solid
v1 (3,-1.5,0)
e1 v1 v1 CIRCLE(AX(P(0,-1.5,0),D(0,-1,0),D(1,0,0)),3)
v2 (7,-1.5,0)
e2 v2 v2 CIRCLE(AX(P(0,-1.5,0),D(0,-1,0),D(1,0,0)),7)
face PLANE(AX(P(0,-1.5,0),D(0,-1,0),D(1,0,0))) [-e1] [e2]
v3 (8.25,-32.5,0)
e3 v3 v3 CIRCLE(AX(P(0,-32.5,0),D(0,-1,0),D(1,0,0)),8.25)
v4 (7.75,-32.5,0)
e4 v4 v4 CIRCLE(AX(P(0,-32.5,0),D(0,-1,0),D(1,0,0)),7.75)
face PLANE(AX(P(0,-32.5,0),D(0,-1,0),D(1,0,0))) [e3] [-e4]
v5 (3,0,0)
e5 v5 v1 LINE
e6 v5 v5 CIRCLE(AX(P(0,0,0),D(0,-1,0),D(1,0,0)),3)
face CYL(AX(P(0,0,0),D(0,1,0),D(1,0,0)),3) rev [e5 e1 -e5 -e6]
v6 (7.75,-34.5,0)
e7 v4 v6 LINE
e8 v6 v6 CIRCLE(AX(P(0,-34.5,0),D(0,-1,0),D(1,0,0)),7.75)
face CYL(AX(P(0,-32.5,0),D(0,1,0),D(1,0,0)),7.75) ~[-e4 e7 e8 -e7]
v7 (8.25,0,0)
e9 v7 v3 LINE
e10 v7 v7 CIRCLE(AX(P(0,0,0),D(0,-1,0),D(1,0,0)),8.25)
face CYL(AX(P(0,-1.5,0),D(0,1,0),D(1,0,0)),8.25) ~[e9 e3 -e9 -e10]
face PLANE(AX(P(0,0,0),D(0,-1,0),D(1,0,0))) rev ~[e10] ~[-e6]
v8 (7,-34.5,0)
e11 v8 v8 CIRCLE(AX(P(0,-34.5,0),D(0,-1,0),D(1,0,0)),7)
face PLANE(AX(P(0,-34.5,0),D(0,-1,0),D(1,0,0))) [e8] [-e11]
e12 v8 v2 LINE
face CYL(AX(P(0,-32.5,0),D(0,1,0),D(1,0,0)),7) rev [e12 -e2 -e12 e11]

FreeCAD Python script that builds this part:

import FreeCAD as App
import Part
import Sketcher
from FreeCAD import Vector

doc = App.newDocument("Part")
body = doc.addObject("PartDesign::Body", "Body")

sketch1 = body.newObject("Sketcher::SketchObject", "Sketch")
sketch1.AttachmentSupport = (doc.getObject("XY_Plane"), [""])
sketch1.MapMode = "FlatFace"
sketch1.addGeometry([
    Part.Circle(Vector(0, 0, 0), Vector(0, 0, 1), 8.2),
    Part.Circle(Vector(0, 0, 0), Vector(0, 0, 1), 3),
], False)
sketch1.addConstraint([
    Sketcher.Constraint("Coincident", 0, 3, -1, 1),
    Sketcher.Constraint("Coincident", 1, 3, -1, 1),
    Sketcher.Constraint("Diameter", 1, 6.0),
    Sketcher.Constraint("Diameter", 0, 16.5),
])
pad1 = body.newObject("PartDesign::Pad", "Pad")
pad1.Profile = sketch1
pad1.Length = 1.5

sketch2 = body.newObject("Sketcher::SketchObject", "Sketch001")
sketch2.AttachmentSupport = (doc.getObject("XY_Plane"), [""])
sketch2.MapMode = "FlatFace"
sketch2.AttachmentOffset = App.Placement(Vector(0, 0, 1.5), App.Rotation())
sketch2.addGeometry([
    Part.Circle(Vector(0, 0, 0), Vector(0, 0, 1), 8),
    Part.Circle(Vector(0, 0, 0), Vector(0, 0, 1), 7),
], False)
sketch2.addConstraint([
    Sketcher.Constraint("Coincident", 0, 3, -1, 1),
    Sketcher.Constraint("Coincident", 1, 3, -1, 1),
    Sketcher.Constraint("Diameter", 1, 14.0),
    Sketcher.Constraint("Diameter", 0, 16.5),
])
pad2 = body.newObject("PartDesign::Pad", "Pad001")
pad2.Profile = sketch2
pad2.Length = 31

sketch3 = body.newObject("Sketcher::SketchObject", "Sketch002")
sketch3.AttachmentSupport = (doc.getObject("XY_Plane"), [""])
sketch3.MapMode = "FlatFace"
sketch3.AttachmentOffset = App.Placement(Vector(0, 0, 32.5), App.Rotation())
sketch3.addGeometry([
    Part.Circle(Vector(0, 0, 0), Vector(0, 0, 1), 8),
    Part.Circle(Vector(0, 0, 0), Vector(0, 0, 1), 7),
], False)
sketch3.addConstraint([
    Sketcher.Constraint("Coincident", 0, 3, -1, 1),
    Sketcher.Constraint("Coincident", 1, 3, -1, 1),
    Sketcher.Constraint("Diameter", 1, 14.0),
    Sketcher.Constraint("Diameter", 0, 15.5),
])
pad3 = body.newObject("PartDesign::Pad", "Pad002")
pad3.Profile = sketch3
pad3.Length = 2
body2 = doc.addObject("PartDesign::Body", "Body001")
doc.recompute()

body.Placement = App.Placement(Vector(0, 0, 0), App.Rotation(Vector(1, 0, 0), 90))
boolean = body2.newObject("PartDesign::Boolean", "Boolean")
boolean.Type = "Fuse"
boolean.addObjects([body])

doc.recompute()
